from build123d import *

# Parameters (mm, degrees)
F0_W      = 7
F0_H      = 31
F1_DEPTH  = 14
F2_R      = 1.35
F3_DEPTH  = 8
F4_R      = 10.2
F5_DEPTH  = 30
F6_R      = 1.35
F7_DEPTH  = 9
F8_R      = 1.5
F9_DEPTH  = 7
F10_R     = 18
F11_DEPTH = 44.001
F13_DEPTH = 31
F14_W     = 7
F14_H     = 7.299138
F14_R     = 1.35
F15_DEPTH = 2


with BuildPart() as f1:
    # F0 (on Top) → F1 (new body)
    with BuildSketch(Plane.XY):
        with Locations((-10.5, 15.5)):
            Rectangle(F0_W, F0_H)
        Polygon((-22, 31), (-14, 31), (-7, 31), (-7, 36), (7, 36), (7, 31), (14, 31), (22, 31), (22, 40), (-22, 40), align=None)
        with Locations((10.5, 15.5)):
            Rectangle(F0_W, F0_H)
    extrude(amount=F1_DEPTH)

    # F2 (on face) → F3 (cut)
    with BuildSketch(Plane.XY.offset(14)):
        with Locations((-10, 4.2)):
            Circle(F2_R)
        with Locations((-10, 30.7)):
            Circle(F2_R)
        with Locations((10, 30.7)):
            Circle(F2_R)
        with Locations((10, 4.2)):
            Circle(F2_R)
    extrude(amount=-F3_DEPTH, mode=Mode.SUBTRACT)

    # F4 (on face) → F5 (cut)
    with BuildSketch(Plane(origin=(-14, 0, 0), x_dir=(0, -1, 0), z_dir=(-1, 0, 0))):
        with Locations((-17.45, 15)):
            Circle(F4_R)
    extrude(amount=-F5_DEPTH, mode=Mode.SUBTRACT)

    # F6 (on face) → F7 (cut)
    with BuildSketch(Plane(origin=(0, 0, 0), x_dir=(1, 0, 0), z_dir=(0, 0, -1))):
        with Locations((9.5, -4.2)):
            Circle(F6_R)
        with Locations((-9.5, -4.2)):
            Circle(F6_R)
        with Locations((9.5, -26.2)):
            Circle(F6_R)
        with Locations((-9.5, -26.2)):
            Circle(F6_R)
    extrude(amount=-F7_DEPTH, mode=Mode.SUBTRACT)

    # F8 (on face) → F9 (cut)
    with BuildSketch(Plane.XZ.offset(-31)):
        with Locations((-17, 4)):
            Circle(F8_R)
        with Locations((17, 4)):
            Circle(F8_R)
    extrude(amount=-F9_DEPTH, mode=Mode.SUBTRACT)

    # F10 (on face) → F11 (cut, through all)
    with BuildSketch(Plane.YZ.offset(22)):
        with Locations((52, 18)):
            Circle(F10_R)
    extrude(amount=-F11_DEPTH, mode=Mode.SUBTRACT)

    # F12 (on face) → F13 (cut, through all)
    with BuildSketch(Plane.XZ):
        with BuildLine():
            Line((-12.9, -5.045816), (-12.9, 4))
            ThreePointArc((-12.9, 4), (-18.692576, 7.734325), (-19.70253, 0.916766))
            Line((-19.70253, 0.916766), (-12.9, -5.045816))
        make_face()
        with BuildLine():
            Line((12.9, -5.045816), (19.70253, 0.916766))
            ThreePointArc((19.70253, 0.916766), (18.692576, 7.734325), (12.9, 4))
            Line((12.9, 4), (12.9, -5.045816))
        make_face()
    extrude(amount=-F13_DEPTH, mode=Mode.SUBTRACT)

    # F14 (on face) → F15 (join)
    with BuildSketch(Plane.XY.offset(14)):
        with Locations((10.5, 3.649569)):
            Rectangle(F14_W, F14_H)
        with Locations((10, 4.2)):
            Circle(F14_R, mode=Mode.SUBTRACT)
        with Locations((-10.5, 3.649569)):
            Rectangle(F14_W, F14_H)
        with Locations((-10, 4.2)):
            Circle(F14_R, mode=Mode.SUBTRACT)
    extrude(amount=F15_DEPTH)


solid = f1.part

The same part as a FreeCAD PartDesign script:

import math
import FreeCAD as App
import Part
import Sketcher
from FreeCAD import Vector


def add_polygon(sketch, points):
    """Adds a closed chain of lines whose ends are joined by coincident constraints."""
    first, n = sketch.GeometryCount, len(points)
    for a, b in zip(points, points[1:] + points[:1]):
        sketch.addGeometry(Part.LineSegment(App.Vector(*a, 0), App.Vector(*b, 0)), False)
    for i in range(n):
        sketch.addConstraint(Sketcher.Constraint("Coincident", first + i, 2, first + (i + 1) % n, 1))

doc = App.newDocument("Part")
body = doc.addObject("PartDesign::Body", "Body")

# Sketch on XY plane
sketch1 = doc.addObject("Sketcher::SketchObject", "Sketch")
body.addObject(sketch1)
sketch1.AttachmentSupport = (doc.XY_Plane, [""])
sketch1.MapMode = "FlatFace"
add_polygon(sketch1, [(-14, 31), (-14, 0), (-7, 0), (-7, 36), (7, 36), (7, 0), (14, 0), (14, 31), (22, 31), (22, 40), (-22, 40), (-22, 31)])  # lines 0-11
sketch1.addConstraint([
    Sketcher.Constraint("Vertical", 0),
    Sketcher.Constraint("Horizontal", 1),
    Sketcher.Constraint("Vertical", 2),
    Sketcher.Constraint("Horizontal", 3),
    Sketcher.Constraint("Vertical", 4),
    Sketcher.Constraint("Horizontal", 5),
    Sketcher.Constraint("Vertical", 6),
    Sketcher.Constraint("Horizontal", 7),
    Sketcher.Constraint("Vertical", 8),
    Sketcher.Constraint("Horizontal", 9),
    Sketcher.Constraint("Vertical", 10),
    Sketcher.Constraint("Horizontal", 11),
    Sketcher.Constraint("Symmetric", 1, 2, 4, 2, -1, 1),
    Sketcher.Constraint("Symmetric", 0, 2, 5, 2, -2),
    Sketcher.Constraint("Symmetric", 7, 2, 10, 2, -2),
    Sketcher.Constraint("DistanceX", 1, 1, 1, 2, 7.0),
    Sketcher.Constraint("DistanceX", 3, 1, 3, 2, 14.0),
    Sketcher.Constraint("DistanceX", 7, 1, 7, 2, 8.0),
    Sketcher.Constraint("DistanceY", 0, 2, 0, 1, 31.0),
    Sketcher.Constraint("DistanceY", 2, 1, 2, 2, 36.0),
    Sketcher.Constraint("DistanceY", 8, 1, 8, 2, 9.0),
])
pad1 = doc.addObject("PartDesign::Pad", "Pad")
body.addObject(pad1)
pad1.Profile = sketch1
pad1.Length = 14

# Sketch on XY plane
sketch2 = doc.addObject("Sketcher::SketchObject", "Sketch001")
body.addObject(sketch2)
sketch2.AttachmentSupport = (doc.XY_Plane, [""])
sketch2.MapMode = "FlatFace"
sketch2.AttachmentOffset = App.Placement(Vector(0, 0, 14), App.Rotation())
sketch2.addGeometry([
    Part.Circle(Vector(-10, 4.2, 0), Vector(0, 0, 1), 1.4),
    Part.Circle(Vector(-10, 30.7, 0), Vector(0, 0, 1), 1.4),
    Part.Circle(Vector(10, 30.7, 0), Vector(0, 0, 1), 1.4),
    Part.Circle(Vector(10, 4.2, 0), Vector(0, 0, 1), 1.4),
], False)
sketch2.addConstraint([
    Sketcher.Constraint("Equal", 0, 1),
    Sketcher.Constraint("Equal", 1, 2),
    Sketcher.Constraint("Equal", 2, 3),
    Sketcher.Constraint("Symmetric", 1, 3, 2, 3, -2),
    Sketcher.Constraint("Symmetric", 0, 3, 3, 3, -2),
    Sketcher.Constraint("Vertical", 0, 3, 1, 3),
    Sketcher.Constraint("Diameter", 0, 2.7),
    Sketcher.Constraint("DistanceX", 0, 3, -1, 1, 10.0),
    Sketcher.Constraint("DistanceY", -1, 1, 0, 3, 4.2),
    Sketcher.Constraint("DistanceY", -1, 1, 1, 3, 30.7),
])
pocket1 = doc.addObject("PartDesign::Pocket", "Pocket")
body.addObject(pocket1)
pocket1.Profile = sketch2
pocket1.Length = 8

# Sketch on YZ plane
sketch3 = doc.addObject("Sketcher::SketchObject", "Sketch002")
body.addObject(sketch3)
sketch3.AttachmentSupport = (doc.YZ_Plane, [""])
sketch3.MapMode = "FlatFace"
sketch3.AttachmentOffset = App.Placement(Vector(0, 0, -14), App.Rotation())
sketch3.addGeometry(Part.Circle(Vector(17, 15, 0), Vector(0, 0, 1), 10), False)
sketch3.addConstraint([
    Sketcher.Constraint("Diameter", 0, 20.4),
    Sketcher.Constraint("DistanceY", -1, 1, 0, 3, 15.0),
    Sketcher.Constraint("DistanceX", -1, 1, 0, 3, 17.45),
])
pocket2 = doc.addObject("PartDesign::Pocket", "Pocket001")
body.addObject(pocket2)
pocket2.Profile = sketch3
pocket2.Length = 30
pocket2.Reversed = True

# Sketch on XY plane
sketch4 = doc.addObject("Sketcher::SketchObject", "Sketch003")
body.addObject(sketch4)
sketch4.AttachmentSupport = (doc.XY_Plane, [""])
sketch4.MapMode = "FlatFace"
sketch4.addGeometry([
    Part.Circle(Vector(9.5, 4.2, 0), Vector(0, 0, 1), 1.4),
    Part.Circle(Vector(-9.5, 4.2, 0), Vector(0, 0, 1), 1.4),
    Part.Circle(Vector(9.5, 26.2, 0), Vector(0, 0, 1), 1.4),
    Part.Circle(Vector(-9.5, 26.2, 0), Vector(0, 0, 1), 1.4),
], False)
sketch4.addConstraint([
    Sketcher.Constraint("Equal", 0, 1),
    Sketcher.Constraint("Equal", 1, 2),
    Sketcher.Constraint("Equal", 2, 3),
    Sketcher.Constraint("Symmetric", 0, 3, 1, 3, -2),
    Sketcher.Constraint("Symmetric", 2, 3, 3, 3, -2),
    Sketcher.Constraint("Vertical", 0, 3, 2, 3),
    Sketcher.Constraint("Diameter", 0, 2.7),
    Sketcher.Constraint("DistanceX", 1, 3, 0, 3, 19.0),
    Sketcher.Constraint("DistanceY", 0, 3, 2, 3, 22.0),
    Sketcher.Constraint("DistanceY", -1, 1, 0, 3, 4.2),
])
pocket3 = doc.addObject("PartDesign::Pocket", "Pocket002")
body.addObject(pocket3)
pocket3.Profile = sketch4
pocket3.Length = 9
pocket3.Reversed = True

# Sketch on XZ plane
sketch5 = doc.addObject("Sketcher::SketchObject", "Sketch004")
body.addObject(sketch5)
sketch5.AttachmentSupport = (doc.XZ_Plane, [""])
sketch5.MapMode = "FlatFace"
sketch5.AttachmentOffset = App.Placement(Vector(0, 0, -31), App.Rotation())
sketch5.addGeometry([
    Part.Circle(Vector(-17, 4, 0), Vector(0, 0, 1), 1.5),
    Part.Circle(Vector(17, 4, 0), Vector(0, 0, 1), 1.5),
], False)
sketch5.addConstraint([
    Sketcher.Constraint("Equal", 0, 1),
    Sketcher.Constraint("Symmetric", 0, 3, 1, 3, -2),
    Sketcher.Constraint("Diameter", 0, 3.0),
    Sketcher.Constraint("DistanceX", 0, 3, -1, 1, 17.0),
    Sketcher.Constraint("DistanceY", -1, 1, 0, 3, 4.0),
])
pocket4 = doc.addObject("PartDesign::Pocket", "Pocket003")
body.addObject(pocket4)
pocket4.Profile = sketch5
pocket4.Length = 7

# Sketch on YZ plane
sketch6 = doc.addObject("Sketcher::SketchObject", "Sketch005")
body.addObject(sketch6)
sketch6.AttachmentSupport = (doc.YZ_Plane, [""])
sketch6.MapMode = "FlatFace"
sketch6.AttachmentOffset = App.Placement(Vector(0, 0, 22), App.Rotation())
sketch6.addGeometry(Part.Circle(Vector(52, 18, 0), Vector(0, 0, 1), 18), False)
sketch6.addConstraint([
    Sketcher.Constraint("Diameter", 0, 36.0),
    Sketcher.Constraint("DistanceX", -1, 1, 0, 3, 52.0),
    Sketcher.Constraint("DistanceY", -1, 1, 0, 3, 18.0),
])
pocket5 = doc.addObject("PartDesign::Pocket", "Pocket004")
body.addObject(pocket5)
pocket5.Profile = sketch6
pocket5.Type = "ThroughAll"

# Sketch on XZ plane
sketch7 = doc.addObject("Sketcher::SketchObject", "Sketch006")
body.addObject(sketch7)
sketch7.AttachmentSupport = (doc.XZ_Plane, [""])
sketch7.MapMode = "FlatFace"
sketch7.addGeometry([
    Part.LineSegment(Vector(-12.9, -5, 0), Vector(-12.9, 4, 0)),  # 0
    Part.ArcOfCircle(Part.Circle(Vector(-17, 4, 0), Vector(0, 0, 1), 4.1), math.radians(0), math.radians(229)),  # 1
    Part.LineSegment(Vector(-19.7, 0.9, 0), Vector(-12.9, -5, 0)),  # 2
    Part.LineSegment(Vector(12.9, -5, 0), Vector(19.7, 0.9, 0)),  # 3
    Part.ArcOfCircle(Part.Circle(Vector(17, 4, 0), Vector(0, 0, 1), 4.1), math.radians(-49), math.radians(180)),  # 4
    Part.LineSegment(Vector(12.9, 4, 0), Vector(12.9, -5, 0)),  # 5
], False)
sketch7.addConstraint([
    Sketcher.Constraint("Tangent", 0, 2, 1, 1),
    Sketcher.Constraint("Tangent", 1, 2, 2, 1),
    Sketcher.Constraint("Coincident", 2, 2, 0, 1),
    Sketcher.Constraint("Tangent", 3, 2, 4, 1),
    Sketcher.Constraint("Tangent", 4, 2, 5, 1),
    Sketcher.Constraint("Coincident", 5, 2, 3, 1),
    Sketcher.Constraint("Vertical", 0),
    Sketcher.Constraint("Vertical", 5),
    Sketcher.Constraint("Equal", 1, 4),
    Sketcher.Constraint("Symmetric", 1, 3, 4, 3, -2),
    Sketcher.Constraint("Horizontal", 1, 2, 3, 2),
    Sketcher.Constraint("Radius", 1, 4.1),
    Sketcher.Constraint("DistanceX", 1, 3, -1, 1, 17.0),
    Sketcher.Constraint("DistanceY", -1, 1, 1, 3, 4.0),
    Sketcher.Constraint("DistanceY", 0, 1, 0, 2, 9.045816),
])
pocket6 = doc.addObject("PartDesign::Pocket", "Pocket005")
body.addObject(pocket6)
pocket6.Profile = sketch7
pocket6.Length = 31

# Sketch on XY plane
sketch8 = doc.addObject("Sketcher::SketchObject", "Sketch007")
body.addObject(sketch8)
sketch8.AttachmentSupport = (doc.XY_Plane, [""])
sketch8.MapMode = "FlatFace"
sketch8.AttachmentOffset = App.Placement(Vector(0, 0, 14), App.Rotation())
add_polygon(sketch8, [(7, 7.3), (7, 0), (14, 0), (14, 7.3)])  # lines 0-3
sketch8.addGeometry(Part.Circle(Vector(10, 4.2, 0), Vector(0, 0, 1), 1.4), False)  # 4
add_polygon(sketch8, [(-14, 7.3), (-14, 0), (-7, 0), (-7, 7.3)])  # lines 5-8
sketch8.addGeometry(Part.Circle(Vector(-10, 4.2, 0), Vector(0, 0, 1), 1.4), False)  # 9
sketch8.addConstraint([
    Sketcher.Constraint("Vertical", 0),
    Sketcher.Constraint("Horizontal", 1),
    Sketcher.Constraint("Vertical", 2),
    Sketcher.Constraint("Horizontal", 3),
    Sketcher.Constraint("Vertical", 5),
    Sketcher.Constraint("Horizontal", 6),
    Sketcher.Constraint("Vertical", 7),
    Sketcher.Constraint("Horizontal", 8),
    Sketcher.Constraint("Equal", 4, 9),
    Sketcher.Constraint("Symmetric", 1, 2, 5, 2, -1, 1),
    Sketcher.Constraint("Symmetric", 4, 3, 9, 3, -2),
    Sketcher.Constraint("Symmetric", 0, 2, 6, 2, -2),
    Sketcher.Constraint("Horizontal", 3, 2, 7, 2),
    Sketcher.Constraint("Diameter", 4, 2.7),
    Sketcher.Constraint("DistanceX", 1, 1, 1, 2, 7.0),
    Sketcher.Constraint("DistanceX", -1, 1, 4, 3, 10.0),
    Sketcher.Constraint("DistanceX", -1, 1, 0, 2, 7.0),
    Sketcher.Constraint("DistanceY", -1, 1, 4, 3, 4.2),
    Sketcher.Constraint("DistanceY", 0, 2, 0, 1, 7.299138),
])
pad2 = doc.addObject("PartDesign::Pad", "Pad001")
body.addObject(pad2)
pad2.Profile = sketch8
pad2.Length = 2

doc.recompute()
